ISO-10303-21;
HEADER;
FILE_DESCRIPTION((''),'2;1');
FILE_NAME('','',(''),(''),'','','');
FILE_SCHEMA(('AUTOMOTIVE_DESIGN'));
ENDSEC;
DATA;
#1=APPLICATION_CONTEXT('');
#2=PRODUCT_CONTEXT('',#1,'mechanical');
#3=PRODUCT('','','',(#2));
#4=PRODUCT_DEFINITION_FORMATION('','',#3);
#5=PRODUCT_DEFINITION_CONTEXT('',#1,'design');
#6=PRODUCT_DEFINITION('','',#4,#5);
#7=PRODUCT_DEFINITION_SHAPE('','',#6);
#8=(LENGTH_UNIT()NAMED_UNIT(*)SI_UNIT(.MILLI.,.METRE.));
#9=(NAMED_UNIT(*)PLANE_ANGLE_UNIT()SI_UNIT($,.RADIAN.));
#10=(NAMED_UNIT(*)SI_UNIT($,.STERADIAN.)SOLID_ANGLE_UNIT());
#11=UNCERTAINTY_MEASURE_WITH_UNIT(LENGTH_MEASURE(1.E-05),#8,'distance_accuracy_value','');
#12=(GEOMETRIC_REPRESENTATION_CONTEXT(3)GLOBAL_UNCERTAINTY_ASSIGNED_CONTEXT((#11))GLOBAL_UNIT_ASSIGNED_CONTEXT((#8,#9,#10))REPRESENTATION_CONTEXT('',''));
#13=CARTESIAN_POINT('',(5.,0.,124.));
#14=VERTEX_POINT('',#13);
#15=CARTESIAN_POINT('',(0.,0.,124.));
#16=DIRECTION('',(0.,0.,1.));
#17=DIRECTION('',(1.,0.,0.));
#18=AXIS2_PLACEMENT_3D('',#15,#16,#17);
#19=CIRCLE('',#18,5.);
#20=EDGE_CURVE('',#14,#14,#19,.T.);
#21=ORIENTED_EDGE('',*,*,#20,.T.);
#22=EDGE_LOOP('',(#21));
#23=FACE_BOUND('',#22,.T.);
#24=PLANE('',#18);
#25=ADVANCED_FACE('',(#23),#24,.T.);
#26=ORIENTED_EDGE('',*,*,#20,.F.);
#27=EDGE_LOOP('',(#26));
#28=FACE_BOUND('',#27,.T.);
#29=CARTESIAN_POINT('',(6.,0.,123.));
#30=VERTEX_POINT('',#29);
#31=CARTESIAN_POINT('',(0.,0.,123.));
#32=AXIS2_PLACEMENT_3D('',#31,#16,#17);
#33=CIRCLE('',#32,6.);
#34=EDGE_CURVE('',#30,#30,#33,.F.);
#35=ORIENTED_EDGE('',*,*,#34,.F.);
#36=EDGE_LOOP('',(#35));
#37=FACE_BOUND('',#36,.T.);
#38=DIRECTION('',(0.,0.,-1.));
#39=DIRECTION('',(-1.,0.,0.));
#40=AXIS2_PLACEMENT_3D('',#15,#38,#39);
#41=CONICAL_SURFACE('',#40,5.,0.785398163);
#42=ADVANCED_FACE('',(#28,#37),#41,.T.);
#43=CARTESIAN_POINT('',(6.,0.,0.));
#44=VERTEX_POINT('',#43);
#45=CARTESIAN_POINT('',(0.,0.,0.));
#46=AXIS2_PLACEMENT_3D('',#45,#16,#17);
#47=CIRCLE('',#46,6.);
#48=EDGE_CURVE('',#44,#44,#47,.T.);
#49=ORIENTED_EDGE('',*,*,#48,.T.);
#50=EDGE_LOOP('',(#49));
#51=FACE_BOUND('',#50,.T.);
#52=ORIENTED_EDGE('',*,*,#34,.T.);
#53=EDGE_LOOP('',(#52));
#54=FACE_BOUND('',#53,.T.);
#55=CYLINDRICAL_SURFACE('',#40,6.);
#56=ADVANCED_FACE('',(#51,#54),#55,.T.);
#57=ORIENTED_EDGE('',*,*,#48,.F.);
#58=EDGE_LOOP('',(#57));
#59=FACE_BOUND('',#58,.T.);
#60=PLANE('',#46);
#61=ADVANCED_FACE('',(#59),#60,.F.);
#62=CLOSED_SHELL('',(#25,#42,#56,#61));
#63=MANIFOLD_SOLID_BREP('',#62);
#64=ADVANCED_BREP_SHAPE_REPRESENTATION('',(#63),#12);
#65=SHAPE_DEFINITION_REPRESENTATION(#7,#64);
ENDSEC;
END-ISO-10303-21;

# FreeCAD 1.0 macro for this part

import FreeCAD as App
import Part
import Sketcher

V = App.Vector
Q = App.Units.Quantity


def edges_at(feature, points):
    """Names of the edges that pass closest to the given points."""
    edges = feature.Shape.Edges
    near = lambda p: min(range(len(edges)), key=lambda i: edges[i].distToShape(Part.Vertex(*p))[0])
    return sorted({f"Edge{near(p) + 1}" for p in points})

doc = App.newDocument("Part")
body = doc.addObject("PartDesign::Body", "Body")

sketch1 = body.newObject("Sketcher::SketchObject", "Sketch")
sketch1.AttachmentSupport = (doc.getObject("XY_Plane"), [""])
sketch1.MapMode = "FlatFace"
sketch1.addGeometry(Part.Circle(V(0, 0, 0), V(0, 0, 1), 6), False)
sketch1.addConstraint([
    Sketcher.Constraint("Coincident", 0, 3, -1, 1),
    Sketcher.Constraint("Diameter", 0, Q("12 mm")),
])
pad1 = body.newObject("PartDesign::Pad", "Pad")
pad1.Profile = sketch1
pad1.Length = 124
doc.recompute()

chamfer = body.newObject("PartDesign::Chamfer", "Chamfer")
chamfer.Base = (pad1, edges_at(pad1, [(-6, 0, 124)]))
chamfer.Size = 1

doc.recompute()
